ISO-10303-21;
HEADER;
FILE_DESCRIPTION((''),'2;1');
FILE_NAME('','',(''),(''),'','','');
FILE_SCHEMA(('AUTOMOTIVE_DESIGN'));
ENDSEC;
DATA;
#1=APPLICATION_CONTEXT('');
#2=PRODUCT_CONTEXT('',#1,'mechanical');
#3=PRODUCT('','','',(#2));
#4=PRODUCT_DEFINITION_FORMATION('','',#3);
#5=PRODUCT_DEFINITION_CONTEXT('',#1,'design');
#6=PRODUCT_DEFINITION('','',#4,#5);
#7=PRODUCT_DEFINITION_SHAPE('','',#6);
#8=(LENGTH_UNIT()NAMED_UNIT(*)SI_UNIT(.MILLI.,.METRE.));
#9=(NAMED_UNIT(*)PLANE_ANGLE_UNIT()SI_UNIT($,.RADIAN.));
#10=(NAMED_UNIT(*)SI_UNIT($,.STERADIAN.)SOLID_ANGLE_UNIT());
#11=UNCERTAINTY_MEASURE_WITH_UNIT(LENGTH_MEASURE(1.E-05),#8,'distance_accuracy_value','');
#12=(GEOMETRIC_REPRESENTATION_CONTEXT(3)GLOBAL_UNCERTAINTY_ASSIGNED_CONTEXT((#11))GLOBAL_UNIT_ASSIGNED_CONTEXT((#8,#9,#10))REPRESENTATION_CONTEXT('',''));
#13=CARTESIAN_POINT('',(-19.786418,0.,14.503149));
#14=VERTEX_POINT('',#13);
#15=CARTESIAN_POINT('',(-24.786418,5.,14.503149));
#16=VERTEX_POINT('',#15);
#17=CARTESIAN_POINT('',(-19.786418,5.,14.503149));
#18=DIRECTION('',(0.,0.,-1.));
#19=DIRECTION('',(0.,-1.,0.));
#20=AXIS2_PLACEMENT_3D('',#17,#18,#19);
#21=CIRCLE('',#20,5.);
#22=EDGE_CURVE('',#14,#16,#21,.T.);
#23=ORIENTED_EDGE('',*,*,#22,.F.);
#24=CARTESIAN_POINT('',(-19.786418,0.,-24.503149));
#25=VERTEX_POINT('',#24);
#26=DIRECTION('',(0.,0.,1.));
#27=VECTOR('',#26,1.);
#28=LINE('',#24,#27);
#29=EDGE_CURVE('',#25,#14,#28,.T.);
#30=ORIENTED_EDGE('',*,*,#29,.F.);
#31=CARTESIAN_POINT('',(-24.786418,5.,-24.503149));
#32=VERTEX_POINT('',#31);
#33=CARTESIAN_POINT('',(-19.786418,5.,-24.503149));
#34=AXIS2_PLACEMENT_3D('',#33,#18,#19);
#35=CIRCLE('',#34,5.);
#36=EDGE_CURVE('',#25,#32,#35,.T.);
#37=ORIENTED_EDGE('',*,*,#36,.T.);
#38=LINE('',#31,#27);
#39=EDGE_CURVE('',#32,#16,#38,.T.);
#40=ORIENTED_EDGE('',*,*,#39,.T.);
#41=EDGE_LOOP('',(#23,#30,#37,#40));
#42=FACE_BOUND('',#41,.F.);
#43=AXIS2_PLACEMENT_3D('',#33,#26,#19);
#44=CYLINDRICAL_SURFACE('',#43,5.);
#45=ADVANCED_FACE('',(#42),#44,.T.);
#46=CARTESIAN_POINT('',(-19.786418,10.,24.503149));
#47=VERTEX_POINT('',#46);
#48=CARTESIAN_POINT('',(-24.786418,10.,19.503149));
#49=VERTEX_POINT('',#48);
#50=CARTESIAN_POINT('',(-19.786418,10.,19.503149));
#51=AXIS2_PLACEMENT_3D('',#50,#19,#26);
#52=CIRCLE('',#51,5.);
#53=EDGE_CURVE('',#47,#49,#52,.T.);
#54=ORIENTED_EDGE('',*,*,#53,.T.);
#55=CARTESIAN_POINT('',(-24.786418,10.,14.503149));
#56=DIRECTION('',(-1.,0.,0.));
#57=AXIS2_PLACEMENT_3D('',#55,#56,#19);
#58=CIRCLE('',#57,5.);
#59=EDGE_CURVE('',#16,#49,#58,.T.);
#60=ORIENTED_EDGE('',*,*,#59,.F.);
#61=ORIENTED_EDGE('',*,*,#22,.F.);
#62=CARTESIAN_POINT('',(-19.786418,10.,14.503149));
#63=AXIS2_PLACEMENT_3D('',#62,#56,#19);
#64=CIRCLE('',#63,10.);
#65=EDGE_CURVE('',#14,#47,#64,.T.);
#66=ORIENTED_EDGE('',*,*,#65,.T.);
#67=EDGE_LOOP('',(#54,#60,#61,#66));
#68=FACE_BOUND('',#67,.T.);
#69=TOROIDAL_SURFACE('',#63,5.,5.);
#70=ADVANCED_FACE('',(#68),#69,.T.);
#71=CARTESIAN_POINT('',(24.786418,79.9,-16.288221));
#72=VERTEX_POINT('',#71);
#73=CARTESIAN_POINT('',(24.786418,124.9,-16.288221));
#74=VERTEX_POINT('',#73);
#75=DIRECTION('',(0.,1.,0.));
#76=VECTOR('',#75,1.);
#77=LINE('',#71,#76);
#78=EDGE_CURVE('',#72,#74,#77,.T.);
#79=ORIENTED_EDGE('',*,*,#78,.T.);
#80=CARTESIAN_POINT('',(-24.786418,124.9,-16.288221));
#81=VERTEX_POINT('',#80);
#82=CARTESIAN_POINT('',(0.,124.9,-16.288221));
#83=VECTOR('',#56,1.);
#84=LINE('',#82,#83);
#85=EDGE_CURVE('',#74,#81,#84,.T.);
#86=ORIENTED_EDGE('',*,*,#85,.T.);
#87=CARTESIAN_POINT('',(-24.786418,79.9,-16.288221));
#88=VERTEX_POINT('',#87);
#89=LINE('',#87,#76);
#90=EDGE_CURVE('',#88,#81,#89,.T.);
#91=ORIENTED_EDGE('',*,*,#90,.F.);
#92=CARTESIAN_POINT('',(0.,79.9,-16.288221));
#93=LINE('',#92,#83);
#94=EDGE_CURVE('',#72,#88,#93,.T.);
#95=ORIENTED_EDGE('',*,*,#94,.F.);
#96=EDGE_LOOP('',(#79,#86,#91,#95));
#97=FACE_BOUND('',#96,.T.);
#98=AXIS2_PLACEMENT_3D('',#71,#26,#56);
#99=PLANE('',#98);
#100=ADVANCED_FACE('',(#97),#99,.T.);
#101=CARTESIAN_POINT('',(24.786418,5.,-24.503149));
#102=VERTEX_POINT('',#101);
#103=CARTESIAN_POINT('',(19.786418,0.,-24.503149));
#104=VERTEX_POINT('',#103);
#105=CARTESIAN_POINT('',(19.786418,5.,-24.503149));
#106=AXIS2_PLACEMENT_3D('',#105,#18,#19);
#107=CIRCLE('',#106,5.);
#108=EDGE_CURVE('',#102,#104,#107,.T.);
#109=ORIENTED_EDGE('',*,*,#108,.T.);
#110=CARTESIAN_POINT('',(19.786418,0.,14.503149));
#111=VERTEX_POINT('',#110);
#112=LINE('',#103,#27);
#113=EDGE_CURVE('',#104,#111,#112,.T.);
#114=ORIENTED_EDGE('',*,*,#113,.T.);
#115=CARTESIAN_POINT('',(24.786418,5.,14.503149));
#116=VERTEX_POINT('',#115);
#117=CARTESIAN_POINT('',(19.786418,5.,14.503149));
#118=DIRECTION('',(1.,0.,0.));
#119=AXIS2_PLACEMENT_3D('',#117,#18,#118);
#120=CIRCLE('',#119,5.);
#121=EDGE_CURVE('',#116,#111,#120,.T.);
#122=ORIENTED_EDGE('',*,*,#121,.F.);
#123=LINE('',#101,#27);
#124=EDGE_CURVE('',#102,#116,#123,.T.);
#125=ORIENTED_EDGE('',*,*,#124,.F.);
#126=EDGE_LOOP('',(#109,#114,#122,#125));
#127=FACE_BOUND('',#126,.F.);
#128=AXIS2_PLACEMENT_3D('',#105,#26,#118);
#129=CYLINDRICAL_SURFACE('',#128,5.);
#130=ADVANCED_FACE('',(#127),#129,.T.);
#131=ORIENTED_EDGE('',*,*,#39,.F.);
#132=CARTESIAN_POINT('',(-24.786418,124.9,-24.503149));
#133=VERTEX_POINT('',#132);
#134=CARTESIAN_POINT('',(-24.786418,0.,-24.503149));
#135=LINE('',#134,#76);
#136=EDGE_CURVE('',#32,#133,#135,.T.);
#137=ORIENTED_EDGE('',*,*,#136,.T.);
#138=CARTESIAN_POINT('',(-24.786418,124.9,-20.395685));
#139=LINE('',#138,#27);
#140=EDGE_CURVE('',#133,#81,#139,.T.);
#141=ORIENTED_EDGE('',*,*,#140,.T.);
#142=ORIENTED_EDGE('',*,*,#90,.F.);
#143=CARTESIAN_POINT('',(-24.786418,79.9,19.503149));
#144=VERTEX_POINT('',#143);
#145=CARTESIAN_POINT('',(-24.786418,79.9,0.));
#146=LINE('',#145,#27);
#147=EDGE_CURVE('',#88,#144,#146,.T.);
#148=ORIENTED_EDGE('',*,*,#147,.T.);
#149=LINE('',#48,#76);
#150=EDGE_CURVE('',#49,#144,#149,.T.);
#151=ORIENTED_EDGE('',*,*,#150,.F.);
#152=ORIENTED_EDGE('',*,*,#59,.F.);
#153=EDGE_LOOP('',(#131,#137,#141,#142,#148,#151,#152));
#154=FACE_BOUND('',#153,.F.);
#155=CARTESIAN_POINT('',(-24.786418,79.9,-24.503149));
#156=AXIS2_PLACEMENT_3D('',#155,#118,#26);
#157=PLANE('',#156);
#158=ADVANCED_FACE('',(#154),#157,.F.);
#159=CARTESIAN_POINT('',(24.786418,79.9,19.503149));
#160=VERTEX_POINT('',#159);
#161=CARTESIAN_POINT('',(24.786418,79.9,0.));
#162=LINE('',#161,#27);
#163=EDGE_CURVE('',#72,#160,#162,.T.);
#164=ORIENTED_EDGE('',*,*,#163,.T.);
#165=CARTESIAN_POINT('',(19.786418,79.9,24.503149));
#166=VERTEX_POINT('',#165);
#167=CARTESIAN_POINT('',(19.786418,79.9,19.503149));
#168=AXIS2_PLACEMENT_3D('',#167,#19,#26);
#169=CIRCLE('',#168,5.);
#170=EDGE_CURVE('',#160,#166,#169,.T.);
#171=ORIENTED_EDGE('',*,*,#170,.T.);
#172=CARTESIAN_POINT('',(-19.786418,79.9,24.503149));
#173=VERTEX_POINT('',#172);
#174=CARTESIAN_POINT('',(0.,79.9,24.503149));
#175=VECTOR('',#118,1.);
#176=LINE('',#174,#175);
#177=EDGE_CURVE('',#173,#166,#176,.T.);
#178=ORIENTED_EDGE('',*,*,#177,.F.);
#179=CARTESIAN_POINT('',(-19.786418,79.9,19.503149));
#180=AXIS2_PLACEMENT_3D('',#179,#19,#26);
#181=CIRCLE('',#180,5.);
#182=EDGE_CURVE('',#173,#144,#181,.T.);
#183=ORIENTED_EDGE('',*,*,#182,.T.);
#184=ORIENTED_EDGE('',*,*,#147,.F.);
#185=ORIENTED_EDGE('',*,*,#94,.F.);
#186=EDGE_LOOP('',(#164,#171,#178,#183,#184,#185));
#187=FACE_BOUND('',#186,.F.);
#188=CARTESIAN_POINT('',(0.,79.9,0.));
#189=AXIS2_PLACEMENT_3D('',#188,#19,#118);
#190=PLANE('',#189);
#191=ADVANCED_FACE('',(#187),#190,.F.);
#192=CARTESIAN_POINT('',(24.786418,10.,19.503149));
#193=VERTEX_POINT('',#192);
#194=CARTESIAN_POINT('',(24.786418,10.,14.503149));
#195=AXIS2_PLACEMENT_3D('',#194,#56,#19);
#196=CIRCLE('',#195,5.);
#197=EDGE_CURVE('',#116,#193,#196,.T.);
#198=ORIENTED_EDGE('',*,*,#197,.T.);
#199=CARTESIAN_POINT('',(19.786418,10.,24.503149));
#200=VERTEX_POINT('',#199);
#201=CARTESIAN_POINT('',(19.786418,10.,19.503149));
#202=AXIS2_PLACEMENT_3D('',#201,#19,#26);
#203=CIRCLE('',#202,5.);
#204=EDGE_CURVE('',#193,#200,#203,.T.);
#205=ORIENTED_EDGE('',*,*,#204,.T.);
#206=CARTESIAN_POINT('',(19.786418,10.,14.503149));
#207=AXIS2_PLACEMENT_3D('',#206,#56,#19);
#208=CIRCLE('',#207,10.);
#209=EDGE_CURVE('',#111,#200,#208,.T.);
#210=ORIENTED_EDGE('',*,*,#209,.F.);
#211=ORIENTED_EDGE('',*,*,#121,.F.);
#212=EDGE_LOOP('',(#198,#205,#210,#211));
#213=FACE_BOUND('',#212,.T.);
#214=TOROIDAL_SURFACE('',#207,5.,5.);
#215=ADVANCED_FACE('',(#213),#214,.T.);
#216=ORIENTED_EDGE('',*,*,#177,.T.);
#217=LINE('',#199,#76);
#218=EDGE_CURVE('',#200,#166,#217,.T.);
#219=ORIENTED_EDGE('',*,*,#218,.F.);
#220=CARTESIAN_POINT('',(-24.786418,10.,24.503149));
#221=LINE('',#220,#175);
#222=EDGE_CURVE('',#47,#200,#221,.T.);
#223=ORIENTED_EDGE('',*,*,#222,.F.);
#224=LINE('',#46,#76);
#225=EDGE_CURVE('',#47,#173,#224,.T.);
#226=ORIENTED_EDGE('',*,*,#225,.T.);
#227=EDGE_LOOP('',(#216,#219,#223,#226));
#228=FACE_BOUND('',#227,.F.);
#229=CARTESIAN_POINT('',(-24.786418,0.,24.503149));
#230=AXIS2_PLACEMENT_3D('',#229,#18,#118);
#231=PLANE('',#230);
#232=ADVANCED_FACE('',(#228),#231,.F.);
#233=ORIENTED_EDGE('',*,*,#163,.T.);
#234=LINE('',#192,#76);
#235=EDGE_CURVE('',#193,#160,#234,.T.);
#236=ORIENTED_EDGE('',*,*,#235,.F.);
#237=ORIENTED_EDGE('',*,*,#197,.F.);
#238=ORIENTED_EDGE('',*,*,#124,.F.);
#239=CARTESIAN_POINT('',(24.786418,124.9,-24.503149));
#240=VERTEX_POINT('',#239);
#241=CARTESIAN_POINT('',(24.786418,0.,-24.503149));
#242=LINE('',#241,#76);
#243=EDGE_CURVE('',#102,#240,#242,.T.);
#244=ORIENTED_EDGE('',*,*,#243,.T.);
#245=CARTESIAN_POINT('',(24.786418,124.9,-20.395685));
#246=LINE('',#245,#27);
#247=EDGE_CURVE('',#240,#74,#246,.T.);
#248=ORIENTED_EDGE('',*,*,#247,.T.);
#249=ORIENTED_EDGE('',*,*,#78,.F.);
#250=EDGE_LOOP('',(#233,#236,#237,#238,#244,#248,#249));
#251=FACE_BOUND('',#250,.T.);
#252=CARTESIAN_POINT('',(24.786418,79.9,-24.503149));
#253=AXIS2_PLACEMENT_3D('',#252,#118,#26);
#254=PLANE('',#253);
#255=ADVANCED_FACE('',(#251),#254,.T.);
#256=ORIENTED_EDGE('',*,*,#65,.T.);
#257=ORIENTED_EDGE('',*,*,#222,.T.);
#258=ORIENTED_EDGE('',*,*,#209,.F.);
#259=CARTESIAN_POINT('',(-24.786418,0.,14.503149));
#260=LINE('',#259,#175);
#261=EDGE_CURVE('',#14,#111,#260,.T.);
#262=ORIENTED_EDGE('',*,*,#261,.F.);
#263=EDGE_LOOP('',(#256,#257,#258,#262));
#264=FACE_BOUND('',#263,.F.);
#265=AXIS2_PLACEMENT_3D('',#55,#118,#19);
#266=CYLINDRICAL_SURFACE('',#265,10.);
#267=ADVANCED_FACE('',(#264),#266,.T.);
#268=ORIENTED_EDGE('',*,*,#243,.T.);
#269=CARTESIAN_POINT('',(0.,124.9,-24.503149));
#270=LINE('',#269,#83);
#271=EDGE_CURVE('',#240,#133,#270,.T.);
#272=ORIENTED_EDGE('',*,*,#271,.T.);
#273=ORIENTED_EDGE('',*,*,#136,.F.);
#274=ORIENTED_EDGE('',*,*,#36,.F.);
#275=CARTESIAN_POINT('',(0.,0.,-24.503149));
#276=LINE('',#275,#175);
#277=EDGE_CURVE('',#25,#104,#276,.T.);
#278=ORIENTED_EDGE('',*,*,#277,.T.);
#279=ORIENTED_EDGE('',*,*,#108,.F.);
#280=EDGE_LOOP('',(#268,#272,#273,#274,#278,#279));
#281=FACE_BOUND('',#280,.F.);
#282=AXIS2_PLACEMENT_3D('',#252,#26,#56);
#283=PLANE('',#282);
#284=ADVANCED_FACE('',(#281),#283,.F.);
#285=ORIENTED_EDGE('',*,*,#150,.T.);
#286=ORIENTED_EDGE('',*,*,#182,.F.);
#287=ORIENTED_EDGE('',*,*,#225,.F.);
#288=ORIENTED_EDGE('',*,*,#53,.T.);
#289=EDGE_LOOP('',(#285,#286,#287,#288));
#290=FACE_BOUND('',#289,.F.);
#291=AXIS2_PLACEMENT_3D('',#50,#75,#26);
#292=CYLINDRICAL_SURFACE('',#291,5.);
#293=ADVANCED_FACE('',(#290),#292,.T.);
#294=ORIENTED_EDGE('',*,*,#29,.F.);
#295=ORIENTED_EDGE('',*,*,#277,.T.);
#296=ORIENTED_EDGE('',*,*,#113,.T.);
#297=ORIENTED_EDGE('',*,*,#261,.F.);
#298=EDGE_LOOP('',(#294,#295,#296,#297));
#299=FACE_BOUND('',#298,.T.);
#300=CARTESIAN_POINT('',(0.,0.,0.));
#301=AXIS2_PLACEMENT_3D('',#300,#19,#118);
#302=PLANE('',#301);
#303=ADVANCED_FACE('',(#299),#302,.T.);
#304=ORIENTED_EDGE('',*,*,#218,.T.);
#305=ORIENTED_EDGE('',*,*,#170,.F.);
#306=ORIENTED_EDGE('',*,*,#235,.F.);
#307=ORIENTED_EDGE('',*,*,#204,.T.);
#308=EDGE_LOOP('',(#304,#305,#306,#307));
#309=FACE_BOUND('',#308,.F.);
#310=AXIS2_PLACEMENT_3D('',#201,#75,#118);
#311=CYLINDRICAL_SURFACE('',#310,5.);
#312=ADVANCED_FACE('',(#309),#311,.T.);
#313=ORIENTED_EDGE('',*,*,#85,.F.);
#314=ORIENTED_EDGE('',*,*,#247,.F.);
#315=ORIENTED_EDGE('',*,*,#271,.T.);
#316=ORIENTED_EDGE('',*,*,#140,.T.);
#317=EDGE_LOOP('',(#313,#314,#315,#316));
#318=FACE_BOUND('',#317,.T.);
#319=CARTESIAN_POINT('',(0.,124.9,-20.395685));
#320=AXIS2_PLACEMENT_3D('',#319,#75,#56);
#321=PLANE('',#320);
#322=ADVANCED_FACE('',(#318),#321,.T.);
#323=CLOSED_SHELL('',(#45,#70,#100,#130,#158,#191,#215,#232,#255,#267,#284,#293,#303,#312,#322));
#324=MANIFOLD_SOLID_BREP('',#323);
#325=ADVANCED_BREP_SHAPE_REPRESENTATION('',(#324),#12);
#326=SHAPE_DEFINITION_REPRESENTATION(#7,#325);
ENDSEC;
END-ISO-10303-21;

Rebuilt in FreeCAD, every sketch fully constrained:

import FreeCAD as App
import Part
import Sketcher
from FreeCAD import Vector


def edges_at(feature, points):
    """Names of the edges that pass closest to the given points."""
    edges = feature.Shape.Edges
    near = lambda p: min(range(len(edges)), key=lambda i: edges[i].distToShape(Part.Vertex(*p))[0])
    return sorted({f"Edge{near(p) + 1}" for p in points})


def add_polygon(sketch, points):
    """Adds a closed chain of lines whose ends are joined by coincident constraints."""
    first, n = sketch.GeometryCount, len(points)
    for a, b in zip(points, points[1:] + points[:1]):
        sketch.addGeometry(Part.LineSegment(App.Vector(*a, 0), App.Vector(*b, 0)), False)
    for i in range(n):
        sketch.addConstraint(Sketcher.Constraint("Coincident", first + i, 2, first + (i + 1) % n, 1))

doc = App.newDocument("Part")
params = doc.addObject("Spreadsheet::Sheet", "Params")
for row, (alias, value) in enumerate([
    ("pad1_length", "79.9 mm"),
    ("pad2_length", "45 mm"),
    ("fillet_radius", "10 mm"),
    ("fillet2_radius", "5 mm"),
], start=1):
    params.set(f"A{row}", alias)
    params.set(f"B{row}", "=" + value)
    params.setAlias(f"B{row}", alias)

body = doc.addObject("PartDesign::Body", "Body")

# Sketch on XZ plane
sketch1 = doc.addObject("Sketcher::SketchObject", "Sketch")
body.addObject(sketch1)
sketch1.AttachmentSupport = (doc.XZ_Plane, [""])
sketch1.MapMode = "FlatFace"
add_polygon(sketch1, [(-25, 25), (-25, -25), (25, -25), (25, 25)])  # lines 0-3
sketch1.addConstraint([
    Sketcher.Constraint("Vertical", 0),
    Sketcher.Constraint("Horizontal", 1),
    Sketcher.Constraint("Vertical", 2),
    Sketcher.Constraint("Horizontal", 3),
    Sketcher.Constraint("Symmetric", 0, 2, 2, 2, -1, 1),
    Sketcher.Constraint("DistanceY", 0, 2, 0, 1, 49.006298),
    Sketcher.Constraint("DistanceX", 1, 1, 1, 2, 49.572837),
])
pad1 = doc.addObject("PartDesign::Pad", "Pad")
body.addObject(pad1)
pad1.Profile = sketch1
pad1.setExpression("Length", "Params.pad1_length")
pad1.Reversed = True

# Sketch on XZ plane
sketch2 = doc.addObject("Sketcher::SketchObject", "Sketch001")
body.addObject(sketch2)
sketch2.AttachmentSupport = (doc.XZ_Plane, [""])
sketch2.MapMode = "FlatFace"
sketch2.AttachmentOffset = App.Placement(Vector(0, 0, -79.9), App.Rotation())
add_polygon(sketch2, [(25, -16), (25, -25), (-25, -25), (-25, -16)])  # lines 0-3
sketch2.addConstraint([
    Sketcher.Constraint("Vertical", 0),
    Sketcher.Constraint("Horizontal", 1),
    Sketcher.Constraint("Vertical", 2),
    Sketcher.Constraint("Horizontal", 3),
    Sketcher.Constraint("DistanceY", 0, 2, 0, 1, 8.214928),
    Sketcher.Constraint("DistanceX", 1, 2, 1, 1, 49.572837),
    Sketcher.Constraint("DistanceX", -1, 1, 0, 2, 24.786418),
    Sketcher.Constraint("DistanceY", 0, 2, -1, 1, 24.503149),
])
pad2 = doc.addObject("PartDesign::Pad", "Pad001")
body.addObject(pad2)
pad2.Profile = sketch2
pad2.setExpression("Length", "Params.pad2_length")
pad2.Reversed = True
doc.recompute()

fillet = doc.addObject("PartDesign::Fillet", "Fillet")
body.addObject(fillet)
fillet.Base = (pad2, edges_at(pad2, [(0, 0, 24.503)]))
fillet.setExpression("Radius", "Params.fillet_radius")
doc.recompute()

fillet2 = doc.addObject("PartDesign::Fillet", "Fillet001")
body.addObject(fillet2)
fillet2.Base = (fillet, edges_at(fillet, [(24.786, 2.929, 21.574), (-24.786, 2.929, 21.574)]))
fillet2.setExpression("Radius", "Params.fillet2_radius")

doc.recompute()
